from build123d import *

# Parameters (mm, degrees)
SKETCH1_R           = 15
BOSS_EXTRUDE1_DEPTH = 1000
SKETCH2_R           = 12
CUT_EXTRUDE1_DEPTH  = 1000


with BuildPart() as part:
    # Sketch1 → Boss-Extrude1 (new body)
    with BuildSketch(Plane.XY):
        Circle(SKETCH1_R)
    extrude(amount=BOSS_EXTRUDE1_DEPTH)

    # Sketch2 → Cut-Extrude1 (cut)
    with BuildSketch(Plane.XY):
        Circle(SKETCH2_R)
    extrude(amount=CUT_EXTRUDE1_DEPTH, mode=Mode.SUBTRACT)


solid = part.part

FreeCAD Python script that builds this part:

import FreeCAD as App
import Part
import Sketcher
from FreeCAD import Vector
Q = App.Units.Quantity

doc = App.newDocument("Part")
body = doc.addObject("PartDesign::Body", "Body")

# Sketch on XY plane
sketch1 = doc.addObject("Sketcher::SketchObject", "Sketch")
body.addObject(sketch1)
sketch1.AttachmentSupport = (doc.XY_Plane, [""])
sketch1.MapMode = "FlatFace"
sketch1.addGeometry(Part.Circle(Vector(0, 0, 0), Vector(0, 0, 1), 15), False)
sketch1.addConstraint(Sketcher.Constraint("Coincident", 0, 3, -1, 1))
sketch1.addConstraint(Sketcher.Constraint("Diameter", 0, Q("30 mm")))
pad1 = doc.addObject("PartDesign::Pad", "Pad")
body.addObject(pad1)
pad1.Profile = sketch1
pad1.Length = 1000

# Sketch on XY plane
sketch2 = doc.addObject("Sketcher::SketchObject", "Sketch001")
body.addObject(sketch2)
sketch2.AttachmentSupport = (doc.XY_Plane, [""])
sketch2.MapMode = "FlatFace"
sketch2.addGeometry(Part.Circle(Vector(0, 0, 0), Vector(0, 0, 1), 12), False)
sketch2.addConstraint(Sketcher.Constraint("Coincident", 0, 3, -1, 1))
sketch2.addConstraint(Sketcher.Constraint("Diameter", 0, Q("24 mm")))
pocket1 = doc.addObject("PartDesign::Pocket", "Pocket")
body.addObject(pocket1)
pocket1.Profile = sketch2
pocket1.Length = 1000
pocket1.Reversed = True

doc.recompute()
